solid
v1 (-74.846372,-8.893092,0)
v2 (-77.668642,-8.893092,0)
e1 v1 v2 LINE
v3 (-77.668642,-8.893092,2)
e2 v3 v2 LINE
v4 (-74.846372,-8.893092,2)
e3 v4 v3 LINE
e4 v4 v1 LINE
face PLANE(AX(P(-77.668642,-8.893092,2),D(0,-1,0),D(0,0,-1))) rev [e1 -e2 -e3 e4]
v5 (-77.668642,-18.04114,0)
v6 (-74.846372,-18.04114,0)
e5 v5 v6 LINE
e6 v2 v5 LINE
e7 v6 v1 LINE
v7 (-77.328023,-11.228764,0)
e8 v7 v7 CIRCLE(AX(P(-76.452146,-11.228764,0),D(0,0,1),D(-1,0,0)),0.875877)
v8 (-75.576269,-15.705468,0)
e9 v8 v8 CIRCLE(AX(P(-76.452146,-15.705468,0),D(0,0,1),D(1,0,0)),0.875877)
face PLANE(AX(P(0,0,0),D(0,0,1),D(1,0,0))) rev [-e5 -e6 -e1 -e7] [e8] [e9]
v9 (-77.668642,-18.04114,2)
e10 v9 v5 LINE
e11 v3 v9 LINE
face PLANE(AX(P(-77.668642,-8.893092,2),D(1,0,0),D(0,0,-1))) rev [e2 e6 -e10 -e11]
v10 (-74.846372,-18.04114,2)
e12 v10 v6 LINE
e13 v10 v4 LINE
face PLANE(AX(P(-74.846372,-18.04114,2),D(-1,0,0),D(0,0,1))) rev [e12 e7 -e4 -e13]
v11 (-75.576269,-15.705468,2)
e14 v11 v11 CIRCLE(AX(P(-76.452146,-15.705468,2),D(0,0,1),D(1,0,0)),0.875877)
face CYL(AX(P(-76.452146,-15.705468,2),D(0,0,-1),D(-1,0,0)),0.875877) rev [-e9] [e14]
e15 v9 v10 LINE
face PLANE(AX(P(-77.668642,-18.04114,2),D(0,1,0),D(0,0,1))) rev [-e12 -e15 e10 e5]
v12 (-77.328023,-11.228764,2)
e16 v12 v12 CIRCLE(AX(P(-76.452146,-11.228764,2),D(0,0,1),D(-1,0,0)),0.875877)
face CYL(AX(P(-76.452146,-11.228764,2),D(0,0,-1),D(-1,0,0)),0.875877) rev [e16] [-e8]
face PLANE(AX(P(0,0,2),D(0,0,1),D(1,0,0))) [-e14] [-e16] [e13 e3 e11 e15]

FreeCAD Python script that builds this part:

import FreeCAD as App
import Part
import Sketcher
Q = App.Units.Quantity

doc = App.newDocument("Part")
body = doc.addObject("PartDesign::Body", "Body")

# Sketch on XY plane
sketch1 = body.newObject("Sketcher::SketchObject", "Sketch")
sketch1.AttachmentSupport = (doc.getObject("XY_Plane"), [""])
sketch1.MapMode = "FlatFace"
sketch1.addGeometry(Part.LineSegment(App.Vector(-77.7, -8.9, 0), App.Vector(-77.7, -18, 0)), False)
sketch1.addGeometry(Part.LineSegment(App.Vector(-77.7, -18, 0), App.Vector(-74.8, -18, 0)), False)
sketch1.addGeometry(Part.LineSegment(App.Vector(-74.8, -18, 0), App.Vector(-74.8, -8.9, 0)), False)
sketch1.addGeometry(Part.LineSegment(App.Vector(-74.8, -8.9, 0), App.Vector(-77.7, -8.9, 0)), False)
sketch1.addGeometry(Part.Circle(App.Vector(-76.5, -15.7, 0), App.Vector(0, 0, 1), 0.9), False)
sketch1.addGeometry(Part.Circle(App.Vector(-76.5, -11.2, 0), App.Vector(0, 0, 1), 0.9), False)
sketch1.addConstraint(Sketcher.Constraint("Coincident", 0, 2, 1, 1))
sketch1.addConstraint(Sketcher.Constraint("Coincident", 1, 2, 2, 1))
sketch1.addConstraint(Sketcher.Constraint("Coincident", 2, 2, 3, 1))
sketch1.addConstraint(Sketcher.Constraint("Coincident", 3, 2, 0, 1))
sketch1.addConstraint(Sketcher.Constraint("Vertical", 0))
sketch1.addConstraint(Sketcher.Constraint("Horizontal", 1))
sketch1.addConstraint(Sketcher.Constraint("Vertical", 2))
sketch1.addConstraint(Sketcher.Constraint("Horizontal", 3))
sketch1.addConstraint(Sketcher.Constraint("Equal", 4, 5))
sketch1.addConstraint(Sketcher.Constraint("Vertical", 4, 3, 5, 3))
sketch1.addConstraint(Sketcher.Constraint("Diameter", 4, Q("1.751754 mm")))
sketch1.addConstraint(Sketcher.Constraint("DistanceX", 1, 1, 1, 2, Q("2.82227 mm")))
sketch1.addConstraint(Sketcher.Constraint("DistanceY", 0, 2, 0, 1, Q("9.148048 mm")))
sketch1.addConstraint(Sketcher.Constraint("DistanceX", 0, 2, -1, 1, Q("77.668642 mm")))
sketch1.addConstraint(Sketcher.Constraint("DistanceY", 0, 2, -1, 1, Q("18.04114 mm")))
sketch1.addConstraint(Sketcher.Constraint("DistanceY", 0, 2, 4, 3, Q("2.335672 mm")))
sketch1.addConstraint(Sketcher.Constraint("DistanceY", 5, 3, 2, 2, Q("2.335672 mm")))
sketch1.addConstraint(Sketcher.Constraint("DistanceX", 4, 3, -1, 1, Q("76.452146 mm")))
pad1 = body.newObject("PartDesign::Pad", "Pad")
pad1.Profile = sketch1
pad1.Length = 2

doc.recompute()
